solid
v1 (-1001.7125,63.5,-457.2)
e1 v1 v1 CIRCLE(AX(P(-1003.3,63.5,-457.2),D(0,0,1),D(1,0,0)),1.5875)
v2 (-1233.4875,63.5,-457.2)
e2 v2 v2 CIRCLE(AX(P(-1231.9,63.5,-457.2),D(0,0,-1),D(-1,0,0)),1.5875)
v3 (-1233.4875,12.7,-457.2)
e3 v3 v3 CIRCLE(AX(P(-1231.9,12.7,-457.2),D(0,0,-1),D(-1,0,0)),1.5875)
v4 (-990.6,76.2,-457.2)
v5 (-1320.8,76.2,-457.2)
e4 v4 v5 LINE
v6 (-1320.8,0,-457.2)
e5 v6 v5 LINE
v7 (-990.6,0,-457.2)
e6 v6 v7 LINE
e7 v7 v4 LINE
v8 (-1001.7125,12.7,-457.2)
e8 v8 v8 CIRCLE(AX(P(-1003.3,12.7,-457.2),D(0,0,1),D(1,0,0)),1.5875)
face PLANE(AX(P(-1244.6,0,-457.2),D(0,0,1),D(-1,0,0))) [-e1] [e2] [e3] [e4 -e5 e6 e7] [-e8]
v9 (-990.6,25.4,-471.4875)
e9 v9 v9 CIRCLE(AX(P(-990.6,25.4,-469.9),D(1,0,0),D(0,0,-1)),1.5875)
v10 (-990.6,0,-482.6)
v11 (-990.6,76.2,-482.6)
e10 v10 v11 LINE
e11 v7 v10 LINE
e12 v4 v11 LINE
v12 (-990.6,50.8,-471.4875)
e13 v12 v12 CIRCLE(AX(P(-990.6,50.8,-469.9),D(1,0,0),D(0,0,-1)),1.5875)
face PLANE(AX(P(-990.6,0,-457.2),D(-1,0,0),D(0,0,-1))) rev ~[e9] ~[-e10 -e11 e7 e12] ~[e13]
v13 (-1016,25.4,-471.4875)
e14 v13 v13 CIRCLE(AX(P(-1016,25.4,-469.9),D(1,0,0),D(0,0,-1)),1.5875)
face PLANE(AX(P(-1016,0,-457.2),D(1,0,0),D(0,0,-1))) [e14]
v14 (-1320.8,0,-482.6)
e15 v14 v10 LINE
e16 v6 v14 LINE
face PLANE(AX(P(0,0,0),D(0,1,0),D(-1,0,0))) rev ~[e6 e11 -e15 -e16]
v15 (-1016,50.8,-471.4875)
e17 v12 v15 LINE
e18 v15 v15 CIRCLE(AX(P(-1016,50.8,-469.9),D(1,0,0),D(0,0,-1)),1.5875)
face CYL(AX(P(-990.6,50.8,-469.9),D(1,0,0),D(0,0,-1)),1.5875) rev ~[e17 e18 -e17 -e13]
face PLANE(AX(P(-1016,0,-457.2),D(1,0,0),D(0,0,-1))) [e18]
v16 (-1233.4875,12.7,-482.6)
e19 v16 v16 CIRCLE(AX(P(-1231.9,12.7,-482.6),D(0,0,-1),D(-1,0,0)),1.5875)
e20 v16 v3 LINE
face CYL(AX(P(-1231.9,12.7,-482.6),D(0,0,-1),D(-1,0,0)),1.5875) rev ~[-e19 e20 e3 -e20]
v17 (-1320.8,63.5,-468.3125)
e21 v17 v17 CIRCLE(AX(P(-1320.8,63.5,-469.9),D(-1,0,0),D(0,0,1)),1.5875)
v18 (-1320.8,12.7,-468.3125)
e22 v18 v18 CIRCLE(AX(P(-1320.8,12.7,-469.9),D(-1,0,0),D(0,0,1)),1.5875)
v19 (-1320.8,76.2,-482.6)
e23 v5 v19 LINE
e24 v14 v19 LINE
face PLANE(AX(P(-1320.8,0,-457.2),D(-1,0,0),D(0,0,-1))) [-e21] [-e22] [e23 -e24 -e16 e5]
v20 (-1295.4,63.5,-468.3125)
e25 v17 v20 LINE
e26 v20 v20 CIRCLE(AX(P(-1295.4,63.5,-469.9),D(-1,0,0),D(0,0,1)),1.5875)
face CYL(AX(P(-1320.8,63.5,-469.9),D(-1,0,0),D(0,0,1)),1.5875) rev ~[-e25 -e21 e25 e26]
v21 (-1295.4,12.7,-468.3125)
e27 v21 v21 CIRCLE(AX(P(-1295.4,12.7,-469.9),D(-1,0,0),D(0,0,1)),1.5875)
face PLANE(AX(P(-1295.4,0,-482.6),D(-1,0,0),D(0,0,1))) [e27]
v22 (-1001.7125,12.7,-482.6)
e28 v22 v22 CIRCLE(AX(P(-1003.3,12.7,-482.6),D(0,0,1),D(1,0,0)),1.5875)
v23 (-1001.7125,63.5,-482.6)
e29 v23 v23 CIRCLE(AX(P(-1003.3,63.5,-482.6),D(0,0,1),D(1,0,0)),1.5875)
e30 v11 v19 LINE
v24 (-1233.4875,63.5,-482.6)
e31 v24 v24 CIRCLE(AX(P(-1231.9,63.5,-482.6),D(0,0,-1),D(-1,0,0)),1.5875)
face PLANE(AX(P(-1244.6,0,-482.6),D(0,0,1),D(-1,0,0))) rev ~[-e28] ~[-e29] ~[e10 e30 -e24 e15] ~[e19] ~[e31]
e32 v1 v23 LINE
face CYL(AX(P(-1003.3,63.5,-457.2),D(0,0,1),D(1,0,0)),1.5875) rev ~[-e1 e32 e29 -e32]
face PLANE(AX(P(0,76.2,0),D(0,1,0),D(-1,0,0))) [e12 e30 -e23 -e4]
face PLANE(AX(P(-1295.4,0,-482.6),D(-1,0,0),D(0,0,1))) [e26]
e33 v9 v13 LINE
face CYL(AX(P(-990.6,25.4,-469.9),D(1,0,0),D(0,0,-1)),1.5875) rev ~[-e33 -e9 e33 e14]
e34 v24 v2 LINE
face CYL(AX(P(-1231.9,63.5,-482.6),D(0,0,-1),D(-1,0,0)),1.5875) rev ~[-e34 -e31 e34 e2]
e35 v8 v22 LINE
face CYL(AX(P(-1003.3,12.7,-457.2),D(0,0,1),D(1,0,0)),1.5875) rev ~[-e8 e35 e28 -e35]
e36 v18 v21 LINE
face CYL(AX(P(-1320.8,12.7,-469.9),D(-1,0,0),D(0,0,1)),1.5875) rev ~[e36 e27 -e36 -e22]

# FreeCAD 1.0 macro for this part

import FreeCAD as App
import Part
import Sketcher

V = App.Vector
Q = App.Units.Quantity

doc = App.newDocument("Part")
params = doc.addObject("Spreadsheet::Sheet", "Params")
for row, (alias, value) in enumerate([
    ("sketch1_height", "1 in"),
    ("sketch1_width", "13 in"),
    ("pad1_length", "3 in"),
    ("sketch2_diameter", "0.125 in"),
    ("pocket1_length", "1 in"),
    ("sketch3_diameter", "0.125 in"),
    ("pocket2_length", "2 in"),
    ("sketch4_diameter", "0.125 in"),
    ("pocket3_length", "1 in"),
    ("sketch5_diameter", "0.125 in"),
    ("pocket4_length", "3 in"),
], start=1):
    params.set(f"A{row}", alias)
    params.set(f"B{row}", "=" + value)
    params.setAlias(f"B{row}", alias)

body = doc.addObject("PartDesign::Body", "Body")

# Sketch on XZ plane
sketch1 = doc.addObject("Sketcher::SketchObject", "Sketch")
body.addObject(sketch1)
sketch1.AttachmentSupport = (doc.XZ_Plane, [""])
sketch1.MapMode = "FlatFace"
sketch1.addGeometry(Part.LineSegment(V(-1321, -483, 0), V(-1321, -457, 0)), False)
sketch1.addGeometry(Part.LineSegment(V(-1321, -457, 0), V(-991, -457, 0)), False)
sketch1.addGeometry(Part.LineSegment(V(-991, -457, 0), V(-991, -483, 0)), False)
sketch1.addGeometry(Part.LineSegment(V(-991, -483, 0), V(-1321, -483, 0)), False)
sketch1.addConstraint(Sketcher.Constraint("Coincident", 0, 2, 1, 1))
sketch1.addConstraint(Sketcher.Constraint("Coincident", 1, 2, 2, 1))
sketch1.addConstraint(Sketcher.Constraint("Coincident", 2, 2, 3, 1))
sketch1.addConstraint(Sketcher.Constraint("Coincident", 3, 2, 0, 1))
sketch1.addConstraint(Sketcher.Constraint("Vertical", 0))
sketch1.addConstraint(Sketcher.Constraint("Horizontal", 1))
sketch1.addConstraint(Sketcher.Constraint("Vertical", 2))
sketch1.addConstraint(Sketcher.Constraint("Horizontal", 3))
sketch1.addConstraint(Sketcher.Constraint("DistanceY", 0, 1, 0, 2, Q("1 in")))
sketch1.addConstraint(Sketcher.Constraint("DistanceX", 1, 1, 1, 2, Q("13 in")))
sketch1.addConstraint(Sketcher.Constraint("DistanceX", 0, 2, -1, 1, Q("52 in")))
sketch1.addConstraint(Sketcher.Constraint("DistanceY", 0, 2, -1, 1, Q("18 in")))
sketch1.setExpression("Constraints[8]", "Params.sketch1_height")
sketch1.setExpression("Constraints[9]", "Params.sketch1_width")
pad1 = doc.addObject("PartDesign::Pad", "Pad")
body.addObject(pad1)
pad1.Profile = sketch1
pad1.setExpression("Length", "Params.pad1_length")
pad1.Reversed = True

# Sketch on YZ plane
sketch2 = doc.addObject("Sketcher::SketchObject", "Sketch001")
body.addObject(sketch2)
sketch2.AttachmentSupport = (doc.YZ_Plane, [""])
sketch2.MapMode = "FlatFace"
sketch2.AttachmentOffset = App.Placement(V(0, 0, -52 * 25.4), App.Rotation())
sketch2.addGeometry(Part.Circle(V(12.7, -469.9, 0), V(0, 0, 1), 1.6), False)
sketch2.addGeometry(Part.Circle(V(63.5, -469.9, 0), V(0, 0, 1), 1.6), False)
sketch2.addConstraint(Sketcher.Constraint("Equal", 0, 1))
sketch2.addConstraint(Sketcher.Constraint("Horizontal", 0, 3, 1, 3))
sketch2.addConstraint(Sketcher.Constraint("Diameter", 0, Q("0.125 in")))
sketch2.addConstraint(Sketcher.Constraint("DistanceX", -1, 1, 0, 3, Q("0.5 in")))
sketch2.addConstraint(Sketcher.Constraint("DistanceX", 0, 3, 1, 3, Q("2 in")))
sketch2.addConstraint(Sketcher.Constraint("DistanceY", 0, 3, -1, 1, Q("18.5 in")))
sketch2.setExpression("Constraints[2]", "Params.sketch2_diameter")
pocket1 = doc.addObject("PartDesign::Pocket", "Pocket")
body.addObject(pocket1)
pocket1.Profile = sketch2
pocket1.setExpression("Length", "Params.pocket1_length")
pocket1.Reversed = True

# Sketch on XY plane
sketch3 = doc.addObject("Sketcher::SketchObject", "Sketch002")
body.addObject(sketch3)
sketch3.AttachmentSupport = (doc.XY_Plane, [""])
sketch3.MapMode = "FlatFace"
sketch3.AttachmentOffset = App.Placement(V(0, 0, -18 * 25.4), App.Rotation())
sketch3.addGeometry(Part.Circle(V(-1003.3, 63.5, 0), V(0, 0, 1), 1.6), False)
sketch3.addGeometry(Part.Circle(V(-1003.3, 12.7, 0), V(0, 0, 1), 1.6), False)
sketch3.addConstraint(Sketcher.Constraint("Equal", 0, 1))
sketch3.addConstraint(Sketcher.Constraint("Vertical", 0, 3, 1, 3))
sketch3.addConstraint(Sketcher.Constraint("Diameter", 0, Q("0.125 in")))
sketch3.addConstraint(Sketcher.Constraint("DistanceY", -1, 1, 1, 3, Q("0.5 in")))
sketch3.addConstraint(Sketcher.Constraint("DistanceY", 1, 3, 0, 3, Q("2 in")))
sketch3.addConstraint(Sketcher.Constraint("DistanceX", 0, 3, -1, 1, Q("39.5 in")))
sketch3.setExpression("Constraints[2]", "Params.sketch3_diameter")
pocket2 = doc.addObject("PartDesign::Pocket", "Pocket001")
body.addObject(pocket2)
pocket2.Profile = sketch3
pocket2.setExpression("Length", "Params.pocket2_length")

# Sketch on YZ plane
sketch4 = doc.addObject("Sketcher::SketchObject", "Sketch003")
body.addObject(sketch4)
sketch4.AttachmentSupport = (doc.YZ_Plane, [""])
sketch4.MapMode = "FlatFace"
sketch4.AttachmentOffset = App.Placement(V(0, 0, -39 * 25.4), App.Rotation())
sketch4.addGeometry(Part.Circle(V(50.8, -469.9, 0), V(0, 0, 1), 1.6), False)
sketch4.addGeometry(Part.Circle(V(25.4, -469.9, 0), V(0, 0, 1), 1.6), False)
sketch4.addConstraint(Sketcher.Constraint("Equal", 0, 1))
sketch4.addConstraint(Sketcher.Constraint("Horizontal", 0, 3, 1, 3))
sketch4.addConstraint(Sketcher.Constraint("Diameter", 0, Q("0.125 in")))
sketch4.addConstraint(Sketcher.Constraint("DistanceX", -1, 1, 1, 3, Q("1 in")))
sketch4.addConstraint(Sketcher.Constraint("DistanceX", 1, 3, 0, 3, Q("1 in")))
sketch4.addConstraint(Sketcher.Constraint("DistanceY", 0, 3, -1, 1, Q("18.5 in")))
sketch4.setExpression("Constraints[2]", "Params.sketch4_diameter")
pocket3 = doc.addObject("PartDesign::Pocket", "Pocket002")
body.addObject(pocket3)
pocket3.Profile = sketch4
pocket3.setExpression("Length", "Params.pocket3_length")

# Sketch on XY plane
sketch5 = doc.addObject("Sketcher::SketchObject", "Sketch004")
body.addObject(sketch5)
sketch5.AttachmentSupport = (doc.XY_Plane, [""])
sketch5.MapMode = "FlatFace"
sketch5.AttachmentOffset = App.Placement(V(0, 0, -19 * 25.4), App.Rotation())
sketch5.addGeometry(Part.Circle(V(-1231.9, 63.5, 0), V(0, 0, 1), 1.6), False)
sketch5.addGeometry(Part.Circle(V(-1231.9, 12.7, 0), V(0, 0, 1), 1.6), False)
sketch5.addConstraint(Sketcher.Constraint("Equal", 0, 1))
sketch5.addConstraint(Sketcher.Constraint("Vertical", 0, 3, 1, 3))
sketch5.addConstraint(Sketcher.Constraint("Diameter", 0, Q("0.125 in")))
sketch5.addConstraint(Sketcher.Constraint("DistanceY", -1, 1, 1, 3, Q("0.5 in")))
sketch5.addConstraint(Sketcher.Constraint("DistanceY", 1, 3, 0, 3, Q("2 in")))
sketch5.addConstraint(Sketcher.Constraint("DistanceX", 0, 3, -1, 1, Q("48.5 in")))
sketch5.setExpression("Constraints[2]", "Params.sketch5_diameter")
pocket4 = doc.addObject("PartDesign::Pocket", "Pocket003")
body.addObject(pocket4)
pocket4.Profile = sketch5
pocket4.setExpression("Length", "Params.pocket4_length")
pocket4.Reversed = True

doc.recompute()
